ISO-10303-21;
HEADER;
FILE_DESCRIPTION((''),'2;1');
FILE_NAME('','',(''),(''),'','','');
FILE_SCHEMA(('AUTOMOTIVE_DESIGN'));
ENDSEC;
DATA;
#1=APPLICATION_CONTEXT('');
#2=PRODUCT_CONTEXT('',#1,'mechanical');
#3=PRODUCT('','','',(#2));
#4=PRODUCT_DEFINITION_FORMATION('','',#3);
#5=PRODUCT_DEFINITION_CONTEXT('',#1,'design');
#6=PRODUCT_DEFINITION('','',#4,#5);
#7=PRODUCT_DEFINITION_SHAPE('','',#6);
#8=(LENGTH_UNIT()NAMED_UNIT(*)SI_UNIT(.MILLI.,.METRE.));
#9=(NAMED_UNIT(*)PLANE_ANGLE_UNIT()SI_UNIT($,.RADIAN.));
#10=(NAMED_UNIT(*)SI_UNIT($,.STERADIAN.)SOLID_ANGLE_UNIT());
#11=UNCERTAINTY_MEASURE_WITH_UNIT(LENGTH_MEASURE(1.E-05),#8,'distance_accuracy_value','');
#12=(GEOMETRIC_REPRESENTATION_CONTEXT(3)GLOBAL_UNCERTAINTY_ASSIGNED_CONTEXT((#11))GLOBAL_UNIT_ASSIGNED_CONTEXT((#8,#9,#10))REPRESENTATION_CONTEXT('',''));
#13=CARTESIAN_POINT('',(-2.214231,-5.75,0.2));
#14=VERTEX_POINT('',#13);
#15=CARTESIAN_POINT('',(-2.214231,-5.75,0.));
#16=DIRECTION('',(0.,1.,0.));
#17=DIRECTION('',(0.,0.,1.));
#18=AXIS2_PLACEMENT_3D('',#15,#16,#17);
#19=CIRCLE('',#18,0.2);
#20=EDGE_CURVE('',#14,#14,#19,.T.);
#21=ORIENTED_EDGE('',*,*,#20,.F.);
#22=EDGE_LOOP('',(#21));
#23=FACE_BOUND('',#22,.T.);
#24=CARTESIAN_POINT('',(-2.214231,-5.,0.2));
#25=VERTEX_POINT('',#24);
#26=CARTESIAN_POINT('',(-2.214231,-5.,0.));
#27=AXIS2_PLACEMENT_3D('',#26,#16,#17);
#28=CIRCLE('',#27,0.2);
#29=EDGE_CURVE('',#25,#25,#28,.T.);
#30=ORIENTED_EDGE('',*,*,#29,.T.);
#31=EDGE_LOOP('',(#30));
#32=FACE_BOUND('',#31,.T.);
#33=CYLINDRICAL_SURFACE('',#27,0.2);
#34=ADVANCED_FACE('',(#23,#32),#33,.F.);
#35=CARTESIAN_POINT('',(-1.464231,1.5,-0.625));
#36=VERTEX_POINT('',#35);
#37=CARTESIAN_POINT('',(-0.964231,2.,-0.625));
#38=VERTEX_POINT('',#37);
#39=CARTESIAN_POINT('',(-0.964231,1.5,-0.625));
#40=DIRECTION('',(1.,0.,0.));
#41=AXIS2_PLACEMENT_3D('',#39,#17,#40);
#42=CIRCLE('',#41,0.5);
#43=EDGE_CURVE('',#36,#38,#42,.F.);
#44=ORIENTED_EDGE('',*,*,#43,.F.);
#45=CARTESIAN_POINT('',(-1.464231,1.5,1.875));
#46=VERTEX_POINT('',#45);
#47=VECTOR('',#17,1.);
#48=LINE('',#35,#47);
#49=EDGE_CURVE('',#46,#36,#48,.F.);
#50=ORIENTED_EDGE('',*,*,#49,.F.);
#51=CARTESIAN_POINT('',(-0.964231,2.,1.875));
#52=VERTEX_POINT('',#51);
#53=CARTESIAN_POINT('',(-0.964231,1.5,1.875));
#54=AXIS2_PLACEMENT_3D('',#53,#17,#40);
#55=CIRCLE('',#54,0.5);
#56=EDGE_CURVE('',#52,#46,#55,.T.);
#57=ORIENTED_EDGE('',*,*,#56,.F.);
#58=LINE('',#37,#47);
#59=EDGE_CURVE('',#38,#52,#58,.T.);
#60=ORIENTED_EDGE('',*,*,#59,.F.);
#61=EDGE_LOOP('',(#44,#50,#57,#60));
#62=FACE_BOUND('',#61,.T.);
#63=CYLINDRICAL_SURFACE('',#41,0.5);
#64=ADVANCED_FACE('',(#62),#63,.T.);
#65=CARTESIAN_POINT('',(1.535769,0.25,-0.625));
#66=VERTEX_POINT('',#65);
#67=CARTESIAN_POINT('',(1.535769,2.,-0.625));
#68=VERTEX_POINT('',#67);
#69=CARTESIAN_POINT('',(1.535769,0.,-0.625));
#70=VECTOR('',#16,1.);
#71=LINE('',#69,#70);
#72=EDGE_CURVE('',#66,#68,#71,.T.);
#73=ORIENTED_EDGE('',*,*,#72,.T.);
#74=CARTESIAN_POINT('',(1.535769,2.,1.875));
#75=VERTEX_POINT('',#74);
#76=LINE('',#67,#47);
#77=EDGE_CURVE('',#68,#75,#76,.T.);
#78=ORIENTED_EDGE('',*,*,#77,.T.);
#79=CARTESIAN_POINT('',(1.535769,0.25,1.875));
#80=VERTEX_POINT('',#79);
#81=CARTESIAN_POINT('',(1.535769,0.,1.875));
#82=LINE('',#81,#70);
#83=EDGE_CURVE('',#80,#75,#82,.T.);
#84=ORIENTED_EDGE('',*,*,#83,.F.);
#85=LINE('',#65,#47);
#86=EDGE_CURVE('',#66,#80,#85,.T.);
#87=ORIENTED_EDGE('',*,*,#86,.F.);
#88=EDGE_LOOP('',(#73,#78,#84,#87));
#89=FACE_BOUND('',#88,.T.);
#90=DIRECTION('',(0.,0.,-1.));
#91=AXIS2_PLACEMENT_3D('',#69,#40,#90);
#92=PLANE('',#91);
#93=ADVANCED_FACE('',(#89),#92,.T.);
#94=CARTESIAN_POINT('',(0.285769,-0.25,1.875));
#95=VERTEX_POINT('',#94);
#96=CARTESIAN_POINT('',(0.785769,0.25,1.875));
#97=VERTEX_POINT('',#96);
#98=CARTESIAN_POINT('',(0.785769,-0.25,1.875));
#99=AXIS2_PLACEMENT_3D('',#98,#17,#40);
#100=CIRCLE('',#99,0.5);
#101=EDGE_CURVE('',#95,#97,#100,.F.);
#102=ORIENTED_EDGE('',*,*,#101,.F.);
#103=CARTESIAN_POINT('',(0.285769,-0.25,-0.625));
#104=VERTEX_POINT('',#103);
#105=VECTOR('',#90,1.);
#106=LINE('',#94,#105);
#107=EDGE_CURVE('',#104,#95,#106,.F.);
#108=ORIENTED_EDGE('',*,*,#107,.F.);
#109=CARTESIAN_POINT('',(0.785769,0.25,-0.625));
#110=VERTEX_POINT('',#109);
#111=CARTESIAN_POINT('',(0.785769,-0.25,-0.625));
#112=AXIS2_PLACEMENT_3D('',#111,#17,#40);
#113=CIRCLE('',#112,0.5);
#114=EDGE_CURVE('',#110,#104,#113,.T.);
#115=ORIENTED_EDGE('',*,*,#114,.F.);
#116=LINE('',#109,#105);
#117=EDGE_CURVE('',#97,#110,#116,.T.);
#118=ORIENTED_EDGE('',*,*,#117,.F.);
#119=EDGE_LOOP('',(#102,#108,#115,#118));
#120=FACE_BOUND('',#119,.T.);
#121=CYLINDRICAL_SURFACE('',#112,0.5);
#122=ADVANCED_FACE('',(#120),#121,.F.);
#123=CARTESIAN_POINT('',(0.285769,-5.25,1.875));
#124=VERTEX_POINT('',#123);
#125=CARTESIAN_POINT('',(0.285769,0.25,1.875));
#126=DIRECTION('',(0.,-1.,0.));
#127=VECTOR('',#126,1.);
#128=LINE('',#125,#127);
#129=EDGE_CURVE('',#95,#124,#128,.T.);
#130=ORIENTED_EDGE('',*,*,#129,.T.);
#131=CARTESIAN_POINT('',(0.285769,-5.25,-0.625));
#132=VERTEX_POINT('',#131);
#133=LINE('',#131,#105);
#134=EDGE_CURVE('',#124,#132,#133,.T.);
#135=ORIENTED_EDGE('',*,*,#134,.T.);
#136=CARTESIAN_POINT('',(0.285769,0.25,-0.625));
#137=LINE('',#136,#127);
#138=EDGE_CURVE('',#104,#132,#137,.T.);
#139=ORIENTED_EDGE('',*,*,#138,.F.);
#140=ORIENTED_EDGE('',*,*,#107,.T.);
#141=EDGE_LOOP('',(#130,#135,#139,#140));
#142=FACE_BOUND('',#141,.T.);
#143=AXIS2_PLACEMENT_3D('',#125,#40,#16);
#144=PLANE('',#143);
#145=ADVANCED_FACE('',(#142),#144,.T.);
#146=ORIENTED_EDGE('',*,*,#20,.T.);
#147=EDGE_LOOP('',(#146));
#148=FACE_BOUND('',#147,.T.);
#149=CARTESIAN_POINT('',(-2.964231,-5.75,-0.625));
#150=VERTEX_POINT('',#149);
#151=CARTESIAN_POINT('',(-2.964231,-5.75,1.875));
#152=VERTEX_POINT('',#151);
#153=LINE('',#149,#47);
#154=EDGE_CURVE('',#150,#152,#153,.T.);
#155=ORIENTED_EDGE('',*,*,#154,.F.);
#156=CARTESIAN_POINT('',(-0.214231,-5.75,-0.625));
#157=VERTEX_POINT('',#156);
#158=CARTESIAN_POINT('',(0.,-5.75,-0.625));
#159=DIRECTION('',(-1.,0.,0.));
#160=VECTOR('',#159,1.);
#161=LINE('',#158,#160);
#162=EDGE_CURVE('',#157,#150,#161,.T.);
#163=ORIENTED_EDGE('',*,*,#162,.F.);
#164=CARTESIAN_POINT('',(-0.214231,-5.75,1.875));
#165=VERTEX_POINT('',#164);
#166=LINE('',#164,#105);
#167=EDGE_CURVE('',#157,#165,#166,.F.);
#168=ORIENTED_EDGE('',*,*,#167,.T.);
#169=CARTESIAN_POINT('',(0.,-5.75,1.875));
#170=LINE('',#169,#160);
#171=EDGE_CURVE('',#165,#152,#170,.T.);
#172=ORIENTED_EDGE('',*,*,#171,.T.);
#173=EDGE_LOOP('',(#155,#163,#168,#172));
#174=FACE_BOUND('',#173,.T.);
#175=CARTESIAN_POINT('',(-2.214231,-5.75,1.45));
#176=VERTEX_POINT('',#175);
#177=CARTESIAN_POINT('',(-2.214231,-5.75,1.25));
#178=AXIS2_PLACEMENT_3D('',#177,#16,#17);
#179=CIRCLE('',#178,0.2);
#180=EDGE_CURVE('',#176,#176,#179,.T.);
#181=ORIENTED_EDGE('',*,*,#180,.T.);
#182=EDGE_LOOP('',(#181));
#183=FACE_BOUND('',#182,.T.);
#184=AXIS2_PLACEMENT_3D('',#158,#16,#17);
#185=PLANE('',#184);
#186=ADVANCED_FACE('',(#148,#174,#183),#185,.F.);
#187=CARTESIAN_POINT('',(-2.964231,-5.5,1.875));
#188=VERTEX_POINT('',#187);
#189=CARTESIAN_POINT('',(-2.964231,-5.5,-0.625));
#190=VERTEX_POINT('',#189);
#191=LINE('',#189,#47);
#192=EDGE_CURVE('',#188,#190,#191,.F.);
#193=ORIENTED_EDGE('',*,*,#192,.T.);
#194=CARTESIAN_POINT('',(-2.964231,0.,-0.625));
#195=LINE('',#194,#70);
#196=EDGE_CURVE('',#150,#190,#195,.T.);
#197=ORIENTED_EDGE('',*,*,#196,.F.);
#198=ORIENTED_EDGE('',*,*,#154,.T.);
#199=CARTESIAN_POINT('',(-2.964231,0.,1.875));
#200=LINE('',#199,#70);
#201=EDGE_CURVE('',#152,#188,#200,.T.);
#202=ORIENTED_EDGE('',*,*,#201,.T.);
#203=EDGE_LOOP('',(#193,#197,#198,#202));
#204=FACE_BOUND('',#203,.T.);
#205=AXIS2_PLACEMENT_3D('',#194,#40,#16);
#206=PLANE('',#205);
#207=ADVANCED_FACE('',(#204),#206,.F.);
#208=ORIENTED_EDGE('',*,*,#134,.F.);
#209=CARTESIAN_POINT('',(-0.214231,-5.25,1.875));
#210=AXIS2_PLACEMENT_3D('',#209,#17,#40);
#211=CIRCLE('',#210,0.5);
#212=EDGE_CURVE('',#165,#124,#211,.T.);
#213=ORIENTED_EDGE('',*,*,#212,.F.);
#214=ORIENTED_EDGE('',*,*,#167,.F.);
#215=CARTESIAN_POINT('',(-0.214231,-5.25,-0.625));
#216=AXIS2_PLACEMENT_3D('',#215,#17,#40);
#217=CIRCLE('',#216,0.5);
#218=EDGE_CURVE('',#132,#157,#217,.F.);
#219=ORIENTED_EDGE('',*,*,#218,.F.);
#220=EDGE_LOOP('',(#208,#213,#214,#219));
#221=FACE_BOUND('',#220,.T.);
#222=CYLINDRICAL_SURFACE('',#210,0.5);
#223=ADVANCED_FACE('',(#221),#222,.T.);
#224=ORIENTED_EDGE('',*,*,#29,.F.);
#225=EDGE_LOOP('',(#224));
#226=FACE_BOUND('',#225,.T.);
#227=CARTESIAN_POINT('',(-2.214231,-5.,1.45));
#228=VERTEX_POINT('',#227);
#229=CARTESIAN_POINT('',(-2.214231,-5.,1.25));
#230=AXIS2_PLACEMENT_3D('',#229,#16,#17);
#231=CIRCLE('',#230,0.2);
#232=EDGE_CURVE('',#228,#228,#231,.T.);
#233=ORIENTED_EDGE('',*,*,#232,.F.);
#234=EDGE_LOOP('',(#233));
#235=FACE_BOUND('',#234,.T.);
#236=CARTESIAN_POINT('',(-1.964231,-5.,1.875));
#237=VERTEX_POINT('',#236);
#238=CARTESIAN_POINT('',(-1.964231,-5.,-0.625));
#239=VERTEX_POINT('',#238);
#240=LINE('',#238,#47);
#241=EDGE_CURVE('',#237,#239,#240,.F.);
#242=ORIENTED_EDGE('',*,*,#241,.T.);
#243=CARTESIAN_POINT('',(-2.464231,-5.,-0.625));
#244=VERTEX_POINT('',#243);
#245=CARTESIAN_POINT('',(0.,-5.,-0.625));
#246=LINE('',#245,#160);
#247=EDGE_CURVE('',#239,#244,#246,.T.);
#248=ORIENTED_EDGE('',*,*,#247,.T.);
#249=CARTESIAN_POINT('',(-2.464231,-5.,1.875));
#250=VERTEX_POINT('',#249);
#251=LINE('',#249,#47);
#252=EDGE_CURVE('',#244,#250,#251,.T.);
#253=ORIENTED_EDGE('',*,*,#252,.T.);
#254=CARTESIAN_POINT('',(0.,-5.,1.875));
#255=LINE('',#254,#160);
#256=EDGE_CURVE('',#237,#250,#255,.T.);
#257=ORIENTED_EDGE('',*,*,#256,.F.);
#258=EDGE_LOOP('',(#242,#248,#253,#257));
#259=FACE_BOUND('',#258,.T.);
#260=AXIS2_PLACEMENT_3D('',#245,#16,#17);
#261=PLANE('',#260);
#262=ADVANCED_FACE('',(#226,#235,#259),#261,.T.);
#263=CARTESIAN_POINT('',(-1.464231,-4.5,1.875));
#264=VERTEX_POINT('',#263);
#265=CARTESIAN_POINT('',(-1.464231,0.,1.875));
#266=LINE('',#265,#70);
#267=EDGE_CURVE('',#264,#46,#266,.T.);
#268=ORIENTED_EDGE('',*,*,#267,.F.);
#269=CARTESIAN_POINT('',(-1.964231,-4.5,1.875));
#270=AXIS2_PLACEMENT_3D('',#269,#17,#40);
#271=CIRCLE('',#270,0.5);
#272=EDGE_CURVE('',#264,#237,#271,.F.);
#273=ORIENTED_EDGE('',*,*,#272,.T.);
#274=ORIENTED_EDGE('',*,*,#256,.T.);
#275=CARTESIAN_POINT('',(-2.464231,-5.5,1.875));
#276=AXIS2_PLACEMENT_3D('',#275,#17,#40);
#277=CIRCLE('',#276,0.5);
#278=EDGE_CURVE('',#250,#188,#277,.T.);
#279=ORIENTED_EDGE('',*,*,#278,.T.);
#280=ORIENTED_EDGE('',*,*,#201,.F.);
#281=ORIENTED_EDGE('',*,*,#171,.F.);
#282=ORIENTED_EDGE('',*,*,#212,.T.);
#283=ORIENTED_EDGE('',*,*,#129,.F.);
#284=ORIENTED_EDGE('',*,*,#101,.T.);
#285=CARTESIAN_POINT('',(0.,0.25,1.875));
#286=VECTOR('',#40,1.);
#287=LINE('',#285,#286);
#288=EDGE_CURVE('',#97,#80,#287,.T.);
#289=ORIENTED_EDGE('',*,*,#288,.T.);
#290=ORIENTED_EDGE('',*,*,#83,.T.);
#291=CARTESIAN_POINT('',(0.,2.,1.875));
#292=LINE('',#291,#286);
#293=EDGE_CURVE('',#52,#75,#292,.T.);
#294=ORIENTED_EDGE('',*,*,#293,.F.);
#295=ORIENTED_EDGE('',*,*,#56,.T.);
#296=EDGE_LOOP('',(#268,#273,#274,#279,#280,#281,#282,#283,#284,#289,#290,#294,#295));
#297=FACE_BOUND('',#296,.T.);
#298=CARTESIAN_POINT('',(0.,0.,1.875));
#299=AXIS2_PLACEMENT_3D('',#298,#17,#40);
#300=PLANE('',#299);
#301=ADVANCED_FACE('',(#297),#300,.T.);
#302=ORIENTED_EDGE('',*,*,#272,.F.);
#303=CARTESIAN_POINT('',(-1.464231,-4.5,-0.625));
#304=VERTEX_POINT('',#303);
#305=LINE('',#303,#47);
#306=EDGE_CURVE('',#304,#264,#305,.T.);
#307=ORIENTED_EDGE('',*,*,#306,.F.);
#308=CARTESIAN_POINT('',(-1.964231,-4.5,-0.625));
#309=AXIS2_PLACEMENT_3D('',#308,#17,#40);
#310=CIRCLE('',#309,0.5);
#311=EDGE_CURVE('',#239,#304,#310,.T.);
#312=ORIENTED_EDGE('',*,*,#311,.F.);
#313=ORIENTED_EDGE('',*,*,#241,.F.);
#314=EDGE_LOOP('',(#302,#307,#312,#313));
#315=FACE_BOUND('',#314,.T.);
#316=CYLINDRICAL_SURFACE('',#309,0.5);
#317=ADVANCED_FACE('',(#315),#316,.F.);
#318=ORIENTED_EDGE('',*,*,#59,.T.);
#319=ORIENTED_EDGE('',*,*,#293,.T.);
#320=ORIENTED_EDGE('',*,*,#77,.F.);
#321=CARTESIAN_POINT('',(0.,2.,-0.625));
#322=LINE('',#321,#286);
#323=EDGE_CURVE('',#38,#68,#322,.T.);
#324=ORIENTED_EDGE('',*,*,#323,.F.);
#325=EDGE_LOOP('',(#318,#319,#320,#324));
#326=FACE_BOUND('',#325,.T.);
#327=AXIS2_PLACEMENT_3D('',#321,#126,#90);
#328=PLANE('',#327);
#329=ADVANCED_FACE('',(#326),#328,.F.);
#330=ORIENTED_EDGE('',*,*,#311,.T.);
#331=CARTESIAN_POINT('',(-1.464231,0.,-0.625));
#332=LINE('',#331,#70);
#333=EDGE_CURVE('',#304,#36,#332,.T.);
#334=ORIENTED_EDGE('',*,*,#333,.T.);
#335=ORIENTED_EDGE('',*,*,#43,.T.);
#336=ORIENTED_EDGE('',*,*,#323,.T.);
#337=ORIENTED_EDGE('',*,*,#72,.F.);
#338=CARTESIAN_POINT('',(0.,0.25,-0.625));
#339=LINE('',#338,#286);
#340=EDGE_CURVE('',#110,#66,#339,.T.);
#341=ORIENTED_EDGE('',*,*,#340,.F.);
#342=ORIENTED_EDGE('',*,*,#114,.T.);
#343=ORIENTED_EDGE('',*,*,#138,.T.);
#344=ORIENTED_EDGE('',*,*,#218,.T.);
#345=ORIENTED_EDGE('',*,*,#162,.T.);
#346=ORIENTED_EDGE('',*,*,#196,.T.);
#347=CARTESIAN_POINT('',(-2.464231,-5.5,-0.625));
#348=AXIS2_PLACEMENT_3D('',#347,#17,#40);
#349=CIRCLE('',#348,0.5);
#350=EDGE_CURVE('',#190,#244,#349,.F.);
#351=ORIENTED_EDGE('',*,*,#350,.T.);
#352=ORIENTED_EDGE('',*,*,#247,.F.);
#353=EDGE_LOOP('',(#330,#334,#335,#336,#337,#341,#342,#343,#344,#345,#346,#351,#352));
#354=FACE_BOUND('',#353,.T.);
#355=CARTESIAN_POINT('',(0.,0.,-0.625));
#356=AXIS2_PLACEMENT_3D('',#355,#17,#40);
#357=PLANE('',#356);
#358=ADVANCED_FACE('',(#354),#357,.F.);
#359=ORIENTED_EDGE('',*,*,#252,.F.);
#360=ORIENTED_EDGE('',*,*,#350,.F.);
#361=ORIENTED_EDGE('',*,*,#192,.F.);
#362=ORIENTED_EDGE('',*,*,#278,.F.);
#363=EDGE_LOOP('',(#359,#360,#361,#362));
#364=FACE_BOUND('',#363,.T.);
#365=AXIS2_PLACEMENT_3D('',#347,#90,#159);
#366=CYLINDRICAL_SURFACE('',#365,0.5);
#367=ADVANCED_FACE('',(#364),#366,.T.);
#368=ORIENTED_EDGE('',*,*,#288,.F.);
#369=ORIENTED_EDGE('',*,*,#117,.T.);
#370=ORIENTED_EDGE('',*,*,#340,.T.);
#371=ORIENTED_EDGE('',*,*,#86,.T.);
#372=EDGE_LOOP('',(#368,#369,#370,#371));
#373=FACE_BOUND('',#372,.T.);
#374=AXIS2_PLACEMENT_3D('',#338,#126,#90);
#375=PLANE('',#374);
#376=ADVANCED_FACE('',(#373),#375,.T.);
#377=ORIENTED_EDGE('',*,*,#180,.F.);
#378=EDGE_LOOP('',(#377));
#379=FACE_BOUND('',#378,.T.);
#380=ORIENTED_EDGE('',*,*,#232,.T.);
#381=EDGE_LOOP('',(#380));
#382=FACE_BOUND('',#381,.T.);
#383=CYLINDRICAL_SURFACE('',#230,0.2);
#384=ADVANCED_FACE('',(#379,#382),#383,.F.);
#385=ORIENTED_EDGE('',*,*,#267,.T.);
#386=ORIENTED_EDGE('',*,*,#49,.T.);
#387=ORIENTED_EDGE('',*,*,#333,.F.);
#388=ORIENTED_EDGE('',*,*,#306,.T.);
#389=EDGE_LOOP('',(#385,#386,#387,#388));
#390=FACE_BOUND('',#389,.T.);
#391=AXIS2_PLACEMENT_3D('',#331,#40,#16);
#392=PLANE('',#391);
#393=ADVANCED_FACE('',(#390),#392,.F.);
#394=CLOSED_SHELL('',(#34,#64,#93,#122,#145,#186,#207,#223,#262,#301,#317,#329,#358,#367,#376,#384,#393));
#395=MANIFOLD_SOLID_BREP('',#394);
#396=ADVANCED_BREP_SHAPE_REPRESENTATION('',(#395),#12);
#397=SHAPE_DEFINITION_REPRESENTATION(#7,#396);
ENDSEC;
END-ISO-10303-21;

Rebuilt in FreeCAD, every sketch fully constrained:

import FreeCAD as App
import Part
import Sketcher
from FreeCAD import Vector
Q = App.Units.Quantity


def edges_at(feature, points):
    """Names of the edges that pass closest to the given points."""
    edges = feature.Shape.Edges
    near = lambda p: min(range(len(edges)), key=lambda i: edges[i].distToShape(Part.Vertex(*p))[0])
    return sorted({f"Edge{near(p) + 1}" for p in points})


def add_polygon(sketch, points):
    """Adds a closed chain of lines whose ends are joined by coincident constraints."""
    first, n = sketch.GeometryCount, len(points)
    for a, b in zip(points, points[1:] + points[:1]):
        sketch.addGeometry(Part.LineSegment(App.Vector(*a, 0), App.Vector(*b, 0)), False)
    for i in range(n):
        sketch.addConstraint(Sketcher.Constraint("Coincident", first + i, 2, first + (i + 1) % n, 1))

doc = App.newDocument("Part")
params = doc.addObject("Spreadsheet::Sheet", "Params")
for row, (alias, value) in enumerate([
    ("sketch1_width", "3 mm"),
    ("sketch1_height", "6 mm"),
    ("sketch1_height2", "7 mm"),
    ("sketch1_width2", "1.5 mm"),
    ("sketch1_width3", "1.25 mm"),
    ("pad1_length", "1.875 mm"),
    ("pad1_length2", "0.625 mm"),
    ("fillet_radius", "0.5 mm"),
    ("sketch2_diameter", "0.4 mm"),
    ("hole_diameter", "0.4 mm"),
], start=1):
    params.set(f"A{row}", alias)
    params.set(f"B{row}", "=" + value)
    params.setAlias(f"B{row}", alias)

body = doc.addObject("PartDesign::Body", "Body")

sketch1 = doc.addObject("Sketcher::SketchObject", "Sketch")
body.addObject(sketch1)
sketch1.AttachmentSupport = (doc.XY_Plane, [""])
sketch1.MapMode = "FlatFace"
add_polygon(sketch1, [(0.3, -5.8), (0.3, 0.2), (1.5, 0.2), (1.5, 2), (-1.5, 2), (-1.5, -5), (-3, -5), (-3, -5.8)])
sketch1.addConstraint(Sketcher.Constraint("Vertical", 0))
sketch1.addConstraint(Sketcher.Constraint("Horizontal", 1))
sketch1.addConstraint(Sketcher.Constraint("Vertical", 2))
sketch1.addConstraint(Sketcher.Constraint("Horizontal", 3))
sketch1.addConstraint(Sketcher.Constraint("Vertical", 4))
sketch1.addConstraint(Sketcher.Constraint("Horizontal", 5))
sketch1.addConstraint(Sketcher.Constraint("Vertical", 6))
sketch1.addConstraint(Sketcher.Constraint("Horizontal", 7))
sketch1.addConstraint(Sketcher.Constraint("DistanceX", 3, 2, 3, 1, Q("3 mm")))
sketch1.addConstraint(Sketcher.Constraint("DistanceY", 0, 1, 0, 2, Q("6 mm")))
sketch1.addConstraint(Sketcher.Constraint("DistanceY", 4, 2, 4, 1, Q("7 mm")))
sketch1.addConstraint(Sketcher.Constraint("DistanceX", 5, 2, 5, 1, Q("1.5 mm")))
sketch1.addConstraint(Sketcher.Constraint("DistanceY", -1, 1, 2, 2, Q("2 mm")))
sketch1.addConstraint(Sketcher.Constraint("DistanceX", 1, 1, 1, 2, Q("1.25 mm")))
sketch1.addConstraint(Sketcher.Constraint("DistanceY", 2, 1, 2, 2, Q("1.75 mm")))
sketch1.addConstraint(Sketcher.Constraint("DistanceX", -1, 1, 0, 2, Q("0.285769 mm")))
sketch1.setExpression("Constraints[16]", "Params.sketch1_width")
sketch1.setExpression("Constraints[17]", "Params.sketch1_height")
sketch1.setExpression("Constraints[18]", "Params.sketch1_height2")
sketch1.setExpression("Constraints[19]", "Params.sketch1_width2")
sketch1.setExpression("Constraints[21]", "Params.sketch1_width3")
pad1 = doc.addObject("PartDesign::Pad", "Pad")
body.addObject(pad1)
pad1.Profile = sketch1
pad1.Type = "TwoLengths"
pad1.setExpression("Length", "Params.pad1_length")
pad1.setExpression("Length2", "Params.pad1_length2")
doc.recompute()

fillet = doc.addObject("PartDesign::Fillet", "Fillet")
body.addObject(fillet)
fillet.Base = (pad1, edges_at(pad1, [
    (0.286, 0.25, 0.625),
    (-2.964, -5, 0.625),
    (-1.464, -5, 0.625),
    (0.286, -5.75, 0.625),
    (-1.464, 2, 0.625),
]))
fillet.setExpression("Radius", "Params.fillet_radius")

sketch2 = doc.addObject("Sketcher::SketchObject", "Sketch001")
body.addObject(sketch2)
sketch2.AttachmentSupport = (doc.XZ_Plane, [""])
sketch2.MapMode = "FlatFace"
sketch2.AttachmentOffset = App.Placement(Vector(0, 0, 5), App.Rotation())
sketch2.addGeometry(Part.Circle(Vector(-2.21, 0, 0), Vector(0, 0, 1), 0.2), False)
sketch2.addGeometry(Part.Circle(Vector(-2.21, 1.25, 0), Vector(0, 0, 1), 0.2), False)
sketch2.addConstraint(Sketcher.Constraint("Equal", 0, 1))
sketch2.addConstraint(Sketcher.Constraint("PointOnObject", 0, 3, -1))
sketch2.addConstraint(Sketcher.Constraint("Vertical", 0, 3, 1, 3))
sketch2.addConstraint(Sketcher.Constraint("Diameter", 0, Q("0.4 mm")))
sketch2.addConstraint(Sketcher.Constraint("DistanceY", -1, 1, 1, 3, Q("1.25 mm")))
sketch2.addConstraint(Sketcher.Constraint("DistanceX", 0, 3, -1, 1, Q("2.214231 mm")))
sketch2.setExpression("Constraints[3]", "Params.sketch2_diameter")
doc.recompute()
hole = doc.addObject("PartDesign::Hole", "Hole")
body.addObject(hole)
hole.Profile = sketch2
hole.ThreadType = "None"
hole.setExpression("Diameter", "Params.hole_diameter")
hole.DepthType = "ThroughAll"
hole.Reversed = True

doc.recompute()
